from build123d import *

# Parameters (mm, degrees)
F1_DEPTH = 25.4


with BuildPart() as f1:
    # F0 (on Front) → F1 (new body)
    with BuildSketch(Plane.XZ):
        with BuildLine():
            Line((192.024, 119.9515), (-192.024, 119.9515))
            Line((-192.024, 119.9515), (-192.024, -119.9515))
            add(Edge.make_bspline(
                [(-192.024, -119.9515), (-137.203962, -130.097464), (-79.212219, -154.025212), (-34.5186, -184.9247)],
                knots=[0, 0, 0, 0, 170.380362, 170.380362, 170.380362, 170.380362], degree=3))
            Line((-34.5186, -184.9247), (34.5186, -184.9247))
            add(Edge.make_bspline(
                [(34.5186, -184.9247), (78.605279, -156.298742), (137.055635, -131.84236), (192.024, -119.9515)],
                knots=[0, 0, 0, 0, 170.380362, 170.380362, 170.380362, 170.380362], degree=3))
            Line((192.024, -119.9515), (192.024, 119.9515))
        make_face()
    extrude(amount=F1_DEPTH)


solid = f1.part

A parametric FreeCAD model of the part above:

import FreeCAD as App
import Part
import Sketcher

V = App.Vector
Q = App.Units.Quantity

doc = App.newDocument("Part")
body = doc.addObject("PartDesign::Body", "Body")

sketch1 = doc.addObject("Sketcher::SketchObject", "Sketch")
body.addObject(sketch1)
sketch1.AttachmentSupport = (doc.XZ_Plane, [""])
sketch1.MapMode = "FlatFace"
sketch1.addGeometry([
    Part.LineSegment(V(192.024, 119.9515, 0), V(-192.024, 119.9515, 0)),
    Part.LineSegment(V(-192.024, 119.9515, 0), V(-192.024, -119.9515, 0)),
    Part.BSplineCurve([V(-192.024, -119.9515, 0), V(-137.203962, -130.097464, 0), V(-79.212219, -154.025212, 0), V(-34.5186, -184.9247, 0)], [4, 4], [0, 170.380362], False, 3, [1, 1, 1, 1], False),
    Part.LineSegment(V(-34.5186, -184.9247, 0), V(34.5186, -184.9247, 0)),
    Part.BSplineCurve([V(34.5186, -184.9247, 0), V(78.605279, -156.298742, 0), V(137.055635, -131.84236, 0), V(192.024, -119.9515, 0)], [4, 4], [0, 170.380362], False, 3, [1, 1, 1, 1], False),
    Part.LineSegment(V(192.024, -119.9515, 0), V(192.024, 119.9515, 0)),
], False)
sketch1.addConstraint([
    Sketcher.Constraint("Block", 2),
    Sketcher.Constraint("Block", 4),
    Sketcher.Constraint("Coincident", 0, 2, 1, 1),
    Sketcher.Constraint("Coincident", 1, 2, 2, 1),
    Sketcher.Constraint("Coincident", 2, 2, 3, 1),
    Sketcher.Constraint("Coincident", 3, 2, 4, 1),
    Sketcher.Constraint("Coincident", 4, 2, 5, 1),
    Sketcher.Constraint("Coincident", 5, 2, 0, 1),
    Sketcher.Constraint("Horizontal", 0),
    Sketcher.Constraint("Vertical", 1),
    Sketcher.Constraint("Vertical", 5),
    Sketcher.Constraint("DistanceY", 1, 2, 1, 1, Q("9.445 in")),
])
pad1 = doc.addObject("PartDesign::Pad", "Pad")
body.addObject(pad1)
pad1.Profile = sketch1
pad1.Length = Q("1 in")

doc.recompute()
